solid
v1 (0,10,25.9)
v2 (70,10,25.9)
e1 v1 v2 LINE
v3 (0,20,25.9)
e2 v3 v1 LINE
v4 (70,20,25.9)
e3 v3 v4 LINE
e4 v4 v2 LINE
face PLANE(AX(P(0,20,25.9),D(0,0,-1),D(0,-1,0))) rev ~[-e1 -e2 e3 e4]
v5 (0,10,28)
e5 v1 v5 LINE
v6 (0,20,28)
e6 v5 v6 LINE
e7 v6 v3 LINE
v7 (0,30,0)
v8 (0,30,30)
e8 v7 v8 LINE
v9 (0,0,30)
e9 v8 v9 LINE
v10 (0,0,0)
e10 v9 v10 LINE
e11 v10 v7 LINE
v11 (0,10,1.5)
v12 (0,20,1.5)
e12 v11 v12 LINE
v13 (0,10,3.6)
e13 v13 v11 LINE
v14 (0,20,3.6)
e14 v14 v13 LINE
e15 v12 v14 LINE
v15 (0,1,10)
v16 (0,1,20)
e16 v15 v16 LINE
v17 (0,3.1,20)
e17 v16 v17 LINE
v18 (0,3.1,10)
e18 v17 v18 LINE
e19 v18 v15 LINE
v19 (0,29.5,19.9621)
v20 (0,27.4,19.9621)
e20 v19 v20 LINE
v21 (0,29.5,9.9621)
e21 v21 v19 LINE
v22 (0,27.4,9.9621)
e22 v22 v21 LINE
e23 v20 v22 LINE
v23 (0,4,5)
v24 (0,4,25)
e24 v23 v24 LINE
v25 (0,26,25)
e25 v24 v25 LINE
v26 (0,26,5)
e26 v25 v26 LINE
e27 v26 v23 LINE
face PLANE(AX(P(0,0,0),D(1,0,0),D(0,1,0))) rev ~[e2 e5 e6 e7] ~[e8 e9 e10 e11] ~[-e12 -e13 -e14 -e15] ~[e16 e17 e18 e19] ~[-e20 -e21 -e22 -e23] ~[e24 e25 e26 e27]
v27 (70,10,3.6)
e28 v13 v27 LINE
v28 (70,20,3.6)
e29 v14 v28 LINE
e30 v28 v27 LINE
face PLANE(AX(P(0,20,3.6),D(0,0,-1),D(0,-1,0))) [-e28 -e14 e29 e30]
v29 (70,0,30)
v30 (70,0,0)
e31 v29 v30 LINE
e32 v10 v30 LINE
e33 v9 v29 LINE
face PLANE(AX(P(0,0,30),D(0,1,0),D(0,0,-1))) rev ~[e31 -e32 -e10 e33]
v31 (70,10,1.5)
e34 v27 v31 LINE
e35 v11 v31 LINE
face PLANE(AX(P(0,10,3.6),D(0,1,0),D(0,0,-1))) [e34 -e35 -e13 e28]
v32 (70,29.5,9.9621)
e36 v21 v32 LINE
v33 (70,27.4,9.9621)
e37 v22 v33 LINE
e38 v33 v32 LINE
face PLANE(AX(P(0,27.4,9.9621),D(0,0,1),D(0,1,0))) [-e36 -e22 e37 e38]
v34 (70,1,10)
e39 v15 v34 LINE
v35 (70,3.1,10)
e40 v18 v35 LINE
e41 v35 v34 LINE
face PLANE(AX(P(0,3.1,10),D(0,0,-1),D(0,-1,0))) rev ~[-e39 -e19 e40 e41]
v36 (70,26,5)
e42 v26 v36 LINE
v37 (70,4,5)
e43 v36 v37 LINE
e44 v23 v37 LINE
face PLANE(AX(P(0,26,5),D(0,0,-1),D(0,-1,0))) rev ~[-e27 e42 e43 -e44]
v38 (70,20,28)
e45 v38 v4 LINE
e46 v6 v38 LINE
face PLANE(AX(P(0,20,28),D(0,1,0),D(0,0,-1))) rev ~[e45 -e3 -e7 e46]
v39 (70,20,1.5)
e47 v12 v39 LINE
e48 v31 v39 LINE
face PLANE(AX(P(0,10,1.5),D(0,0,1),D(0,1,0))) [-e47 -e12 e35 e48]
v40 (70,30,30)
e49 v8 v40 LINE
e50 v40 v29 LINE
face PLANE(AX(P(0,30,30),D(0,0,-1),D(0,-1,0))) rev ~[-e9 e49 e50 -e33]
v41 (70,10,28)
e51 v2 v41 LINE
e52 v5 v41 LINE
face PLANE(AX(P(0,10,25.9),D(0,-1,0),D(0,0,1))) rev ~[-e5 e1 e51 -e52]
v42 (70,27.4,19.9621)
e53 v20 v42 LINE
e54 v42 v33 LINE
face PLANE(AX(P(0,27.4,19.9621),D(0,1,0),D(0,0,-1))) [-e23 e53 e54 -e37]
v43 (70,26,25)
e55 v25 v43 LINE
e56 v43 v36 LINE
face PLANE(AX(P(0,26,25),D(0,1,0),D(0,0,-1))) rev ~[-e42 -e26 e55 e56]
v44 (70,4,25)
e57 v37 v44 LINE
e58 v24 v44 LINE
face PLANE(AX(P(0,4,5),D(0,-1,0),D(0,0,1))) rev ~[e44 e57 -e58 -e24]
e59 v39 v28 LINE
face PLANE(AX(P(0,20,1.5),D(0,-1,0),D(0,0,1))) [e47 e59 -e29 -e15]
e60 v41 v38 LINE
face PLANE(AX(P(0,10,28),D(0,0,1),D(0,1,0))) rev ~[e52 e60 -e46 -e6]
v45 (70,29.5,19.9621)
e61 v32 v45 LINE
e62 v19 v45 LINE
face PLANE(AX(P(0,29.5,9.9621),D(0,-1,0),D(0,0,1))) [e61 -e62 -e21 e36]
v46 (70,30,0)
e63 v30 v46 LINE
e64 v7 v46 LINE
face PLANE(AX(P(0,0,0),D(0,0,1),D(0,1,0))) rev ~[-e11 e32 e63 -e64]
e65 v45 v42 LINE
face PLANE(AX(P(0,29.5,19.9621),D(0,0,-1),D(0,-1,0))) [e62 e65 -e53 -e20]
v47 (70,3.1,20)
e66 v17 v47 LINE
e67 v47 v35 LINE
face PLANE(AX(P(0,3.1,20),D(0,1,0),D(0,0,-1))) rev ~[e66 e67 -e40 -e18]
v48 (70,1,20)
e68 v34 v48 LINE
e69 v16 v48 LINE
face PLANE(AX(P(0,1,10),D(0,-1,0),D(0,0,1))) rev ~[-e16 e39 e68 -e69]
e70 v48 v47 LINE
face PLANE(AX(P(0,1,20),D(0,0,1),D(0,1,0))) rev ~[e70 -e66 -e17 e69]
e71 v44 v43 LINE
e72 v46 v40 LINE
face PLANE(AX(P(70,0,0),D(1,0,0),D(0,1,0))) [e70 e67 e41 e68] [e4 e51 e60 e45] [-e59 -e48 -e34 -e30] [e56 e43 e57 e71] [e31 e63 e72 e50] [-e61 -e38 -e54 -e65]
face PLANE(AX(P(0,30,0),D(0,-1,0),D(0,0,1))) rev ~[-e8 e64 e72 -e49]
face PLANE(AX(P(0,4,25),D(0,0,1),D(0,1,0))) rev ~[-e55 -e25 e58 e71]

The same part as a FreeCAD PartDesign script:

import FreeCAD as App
import Part
import Sketcher
from FreeCAD import Vector

doc = App.newDocument("Part")
body = doc.addObject("PartDesign::Body", "Body")

sketch1 = body.newObject("Sketcher::SketchObject", "Sketch")
sketch1.AttachmentSupport = (doc.getObject("YZ_Plane"), [""])
sketch1.MapMode = "FlatFace"
sketch1.addGeometry(Part.LineSegment(Vector(0, 30, 0), Vector(0, 0, 0)), False)
sketch1.addGeometry(Part.LineSegment(Vector(0, 0, 0), Vector(30, 0, 0)), False)
sketch1.addGeometry(Part.LineSegment(Vector(30, 0, 0), Vector(30, 30, 0)), False)
sketch1.addGeometry(Part.LineSegment(Vector(30, 30, 0), Vector(0, 30, 0)), False)
sketch1.addGeometry(Part.LineSegment(Vector(20, 1.5, 0), Vector(10, 1.5, 0)), False)
sketch1.addGeometry(Part.LineSegment(Vector(10, 1.5, 0), Vector(10, 3.6, 0)), False)
sketch1.addGeometry(Part.LineSegment(Vector(10, 3.6, 0), Vector(20, 3.6, 0)), False)
sketch1.addGeometry(Part.LineSegment(Vector(20, 3.6, 0), Vector(20, 1.5, 0)), False)
sketch1.addGeometry(Part.LineSegment(Vector(27.4, 19.9621, 0), Vector(29.5, 19.9621, 0)), False)
sketch1.addGeometry(Part.LineSegment(Vector(29.5, 19.9621, 0), Vector(29.5, 9.9621, 0)), False)
sketch1.addGeometry(Part.LineSegment(Vector(29.5, 9.9621, 0), Vector(27.4, 9.9621, 0)), False)
sketch1.addGeometry(Part.LineSegment(Vector(27.4, 9.9621, 0), Vector(27.4, 19.9621, 0)), False)
sketch1.addGeometry(Part.LineSegment(Vector(1, 10, 0), Vector(1, 20, 0)), False)
sketch1.addGeometry(Part.LineSegment(Vector(1, 20, 0), Vector(3.1, 20, 0)), False)
sketch1.addGeometry(Part.LineSegment(Vector(3.1, 20, 0), Vector(3.1, 10, 0)), False)
sketch1.addGeometry(Part.LineSegment(Vector(3.1, 10, 0), Vector(1, 10, 0)), False)
sketch1.addGeometry(Part.LineSegment(Vector(4, 5, 0), Vector(4, 25, 0)), False)
sketch1.addGeometry(Part.LineSegment(Vector(4, 25, 0), Vector(26, 25, 0)), False)
sketch1.addGeometry(Part.LineSegment(Vector(26, 25, 0), Vector(26, 5, 0)), False)
sketch1.addGeometry(Part.LineSegment(Vector(26, 5, 0), Vector(4, 5, 0)), False)
sketch1.addGeometry(Part.LineSegment(Vector(10, 25.9, 0), Vector(10, 28, 0)), False)
sketch1.addGeometry(Part.LineSegment(Vector(10, 28, 0), Vector(20, 28, 0)), False)
sketch1.addGeometry(Part.LineSegment(Vector(20, 28, 0), Vector(20, 25.9, 0)), False)
sketch1.addGeometry(Part.LineSegment(Vector(20, 25.9, 0), Vector(10, 25.9, 0)), False)
sketch1.addConstraint(Sketcher.Constraint("Coincident", 0, 2, 1, 1))
sketch1.addConstraint(Sketcher.Constraint("Coincident", 1, 2, 2, 1))
sketch1.addConstraint(Sketcher.Constraint("Coincident", 2, 2, 3, 1))
sketch1.addConstraint(Sketcher.Constraint("Coincident", 3, 2, 0, 1))
sketch1.addConstraint(Sketcher.Constraint("Coincident", 4, 2, 5, 1))
sketch1.addConstraint(Sketcher.Constraint("Coincident", 5, 2, 6, 1))
sketch1.addConstraint(Sketcher.Constraint("Coincident", 6, 2, 7, 1))
sketch1.addConstraint(Sketcher.Constraint("Coincident", 7, 2, 4, 1))
sketch1.addConstraint(Sketcher.Constraint("Coincident", 8, 2, 9, 1))
sketch1.addConstraint(Sketcher.Constraint("Coincident", 9, 2, 10, 1))
sketch1.addConstraint(Sketcher.Constraint("Coincident", 10, 2, 11, 1))
sketch1.addConstraint(Sketcher.Constraint("Coincident", 11, 2, 8, 1))
sketch1.addConstraint(Sketcher.Constraint("Coincident", 12, 2, 13, 1))
sketch1.addConstraint(Sketcher.Constraint("Coincident", 13, 2, 14, 1))
sketch1.addConstraint(Sketcher.Constraint("Coincident", 14, 2, 15, 1))
sketch1.addConstraint(Sketcher.Constraint("Coincident", 15, 2, 12, 1))
sketch1.addConstraint(Sketcher.Constraint("Coincident", 16, 2, 17, 1))
sketch1.addConstraint(Sketcher.Constraint("Coincident", 17, 2, 18, 1))
sketch1.addConstraint(Sketcher.Constraint("Coincident", 18, 2, 19, 1))
sketch1.addConstraint(Sketcher.Constraint("Coincident", 19, 2, 16, 1))
sketch1.addConstraint(Sketcher.Constraint("Coincident", 20, 2, 21, 1))
sketch1.addConstraint(Sketcher.Constraint("Coincident", 21, 2, 22, 1))
sketch1.addConstraint(Sketcher.Constraint("Coincident", 22, 2, 23, 1))
sketch1.addConstraint(Sketcher.Constraint("Coincident", 23, 2, 20, 1))
sketch1.addConstraint(Sketcher.Constraint("Vertical", 0))
sketch1.addConstraint(Sketcher.Constraint("Horizontal", 1))
sketch1.addConstraint(Sketcher.Constraint("Vertical", 2))
sketch1.addConstraint(Sketcher.Constraint("Horizontal", 3))
sketch1.addConstraint(Sketcher.Constraint("Horizontal", 4))
sketch1.addConstraint(Sketcher.Constraint("Vertical", 5))
sketch1.addConstraint(Sketcher.Constraint("Horizontal", 6))
sketch1.addConstraint(Sketcher.Constraint("Vertical", 7))
sketch1.addConstraint(Sketcher.Constraint("Horizontal", 8))
sketch1.addConstraint(Sketcher.Constraint("Vertical", 9))
sketch1.addConstraint(Sketcher.Constraint("Horizontal", 10))
sketch1.addConstraint(Sketcher.Constraint("Vertical", 11))
sketch1.addConstraint(Sketcher.Constraint("Vertical", 12))
sketch1.addConstraint(Sketcher.Constraint("Horizontal", 13))
sketch1.addConstraint(Sketcher.Constraint("Vertical", 14))
sketch1.addConstraint(Sketcher.Constraint("Horizontal", 15))
sketch1.addConstraint(Sketcher.Constraint("Vertical", 16))
sketch1.addConstraint(Sketcher.Constraint("Horizontal", 17))
sketch1.addConstraint(Sketcher.Constraint("Vertical", 18))
sketch1.addConstraint(Sketcher.Constraint("Horizontal", 19))
sketch1.addConstraint(Sketcher.Constraint("Vertical", 20))
sketch1.addConstraint(Sketcher.Constraint("Horizontal", 21))
sketch1.addConstraint(Sketcher.Constraint("Vertical", 22))
sketch1.addConstraint(Sketcher.Constraint("Horizontal", 23))
sketch1.addConstraint(Sketcher.Constraint("Coincident", 0, 2, -1, 1))
sketch1.addConstraint(Sketcher.Constraint("Vertical", 5, 2, 20, 2))
sketch1.addConstraint(Sketcher.Constraint("Vertical", 7, 2, 21, 2))
sketch1.addConstraint(Sketcher.Constraint("Equal", 10, 13))
sketch1.addConstraint(Sketcher.Constraint("Equal", 3, 0))
sketch1.addConstraint(Sketcher.Constraint("Equal", 15, 5))
sketch1.addConstraint(Sketcher.Constraint("Equal", 23, 9))
sketch1.addConstraint(Sketcher.Constraint("Equal", 11, 12))
sketch1.addConstraint(Sketcher.Constraint("Equal", 7, 20))
sketch1.addConstraint(Sketcher.Constraint("DistanceX", 1, 1, 1, 2, 30.0))
sketch1.addConstraint(Sketcher.Constraint("DistanceX", 4, 2, 4, 1, 10.0))
sketch1.addConstraint(Sketcher.Constraint("DistanceX", 8, 1, 8, 2, 2.1))
sketch1.addConstraint(Sketcher.Constraint("DistanceX", -1, 1, 4, 2, 10.0))
sketch1.addConstraint(Sketcher.Constraint("DistanceY", -1, 1, 14, 2, 10.0))
sketch1.addConstraint(Sketcher.Constraint("DistanceY", -1, 1, 4, 2, 1.5))
sketch1.addConstraint(Sketcher.Constraint("DistanceX", 8, 2, 2, 2, 0.5))
sketch1.addConstraint(Sketcher.Constraint("DistanceX", 17, 1, 17, 2, 22.0))
sketch1.addConstraint(Sketcher.Constraint("DistanceY", 16, 1, 16, 2, 20.0))
sketch1.addConstraint(Sketcher.Constraint("DistanceX", -1, 1, 12, 2, 1.0))
sketch1.addConstraint(Sketcher.Constraint("DistanceX", -1, 1, 16, 2, 4.0))
sketch1.addConstraint(Sketcher.Constraint("DistanceY", -1, 1, 16, 2, 25.0))
sketch1.addConstraint(Sketcher.Constraint("DistanceY", -1, 1, 20, 2, 28.0))
sketch1.addConstraint(Sketcher.Constraint("DistanceY", -1, 1, 8, 2, 19.962))
pad1 = body.newObject("PartDesign::Pad", "Pad")
pad1.Profile = sketch1
pad1.Length = 70

doc.recompute()
